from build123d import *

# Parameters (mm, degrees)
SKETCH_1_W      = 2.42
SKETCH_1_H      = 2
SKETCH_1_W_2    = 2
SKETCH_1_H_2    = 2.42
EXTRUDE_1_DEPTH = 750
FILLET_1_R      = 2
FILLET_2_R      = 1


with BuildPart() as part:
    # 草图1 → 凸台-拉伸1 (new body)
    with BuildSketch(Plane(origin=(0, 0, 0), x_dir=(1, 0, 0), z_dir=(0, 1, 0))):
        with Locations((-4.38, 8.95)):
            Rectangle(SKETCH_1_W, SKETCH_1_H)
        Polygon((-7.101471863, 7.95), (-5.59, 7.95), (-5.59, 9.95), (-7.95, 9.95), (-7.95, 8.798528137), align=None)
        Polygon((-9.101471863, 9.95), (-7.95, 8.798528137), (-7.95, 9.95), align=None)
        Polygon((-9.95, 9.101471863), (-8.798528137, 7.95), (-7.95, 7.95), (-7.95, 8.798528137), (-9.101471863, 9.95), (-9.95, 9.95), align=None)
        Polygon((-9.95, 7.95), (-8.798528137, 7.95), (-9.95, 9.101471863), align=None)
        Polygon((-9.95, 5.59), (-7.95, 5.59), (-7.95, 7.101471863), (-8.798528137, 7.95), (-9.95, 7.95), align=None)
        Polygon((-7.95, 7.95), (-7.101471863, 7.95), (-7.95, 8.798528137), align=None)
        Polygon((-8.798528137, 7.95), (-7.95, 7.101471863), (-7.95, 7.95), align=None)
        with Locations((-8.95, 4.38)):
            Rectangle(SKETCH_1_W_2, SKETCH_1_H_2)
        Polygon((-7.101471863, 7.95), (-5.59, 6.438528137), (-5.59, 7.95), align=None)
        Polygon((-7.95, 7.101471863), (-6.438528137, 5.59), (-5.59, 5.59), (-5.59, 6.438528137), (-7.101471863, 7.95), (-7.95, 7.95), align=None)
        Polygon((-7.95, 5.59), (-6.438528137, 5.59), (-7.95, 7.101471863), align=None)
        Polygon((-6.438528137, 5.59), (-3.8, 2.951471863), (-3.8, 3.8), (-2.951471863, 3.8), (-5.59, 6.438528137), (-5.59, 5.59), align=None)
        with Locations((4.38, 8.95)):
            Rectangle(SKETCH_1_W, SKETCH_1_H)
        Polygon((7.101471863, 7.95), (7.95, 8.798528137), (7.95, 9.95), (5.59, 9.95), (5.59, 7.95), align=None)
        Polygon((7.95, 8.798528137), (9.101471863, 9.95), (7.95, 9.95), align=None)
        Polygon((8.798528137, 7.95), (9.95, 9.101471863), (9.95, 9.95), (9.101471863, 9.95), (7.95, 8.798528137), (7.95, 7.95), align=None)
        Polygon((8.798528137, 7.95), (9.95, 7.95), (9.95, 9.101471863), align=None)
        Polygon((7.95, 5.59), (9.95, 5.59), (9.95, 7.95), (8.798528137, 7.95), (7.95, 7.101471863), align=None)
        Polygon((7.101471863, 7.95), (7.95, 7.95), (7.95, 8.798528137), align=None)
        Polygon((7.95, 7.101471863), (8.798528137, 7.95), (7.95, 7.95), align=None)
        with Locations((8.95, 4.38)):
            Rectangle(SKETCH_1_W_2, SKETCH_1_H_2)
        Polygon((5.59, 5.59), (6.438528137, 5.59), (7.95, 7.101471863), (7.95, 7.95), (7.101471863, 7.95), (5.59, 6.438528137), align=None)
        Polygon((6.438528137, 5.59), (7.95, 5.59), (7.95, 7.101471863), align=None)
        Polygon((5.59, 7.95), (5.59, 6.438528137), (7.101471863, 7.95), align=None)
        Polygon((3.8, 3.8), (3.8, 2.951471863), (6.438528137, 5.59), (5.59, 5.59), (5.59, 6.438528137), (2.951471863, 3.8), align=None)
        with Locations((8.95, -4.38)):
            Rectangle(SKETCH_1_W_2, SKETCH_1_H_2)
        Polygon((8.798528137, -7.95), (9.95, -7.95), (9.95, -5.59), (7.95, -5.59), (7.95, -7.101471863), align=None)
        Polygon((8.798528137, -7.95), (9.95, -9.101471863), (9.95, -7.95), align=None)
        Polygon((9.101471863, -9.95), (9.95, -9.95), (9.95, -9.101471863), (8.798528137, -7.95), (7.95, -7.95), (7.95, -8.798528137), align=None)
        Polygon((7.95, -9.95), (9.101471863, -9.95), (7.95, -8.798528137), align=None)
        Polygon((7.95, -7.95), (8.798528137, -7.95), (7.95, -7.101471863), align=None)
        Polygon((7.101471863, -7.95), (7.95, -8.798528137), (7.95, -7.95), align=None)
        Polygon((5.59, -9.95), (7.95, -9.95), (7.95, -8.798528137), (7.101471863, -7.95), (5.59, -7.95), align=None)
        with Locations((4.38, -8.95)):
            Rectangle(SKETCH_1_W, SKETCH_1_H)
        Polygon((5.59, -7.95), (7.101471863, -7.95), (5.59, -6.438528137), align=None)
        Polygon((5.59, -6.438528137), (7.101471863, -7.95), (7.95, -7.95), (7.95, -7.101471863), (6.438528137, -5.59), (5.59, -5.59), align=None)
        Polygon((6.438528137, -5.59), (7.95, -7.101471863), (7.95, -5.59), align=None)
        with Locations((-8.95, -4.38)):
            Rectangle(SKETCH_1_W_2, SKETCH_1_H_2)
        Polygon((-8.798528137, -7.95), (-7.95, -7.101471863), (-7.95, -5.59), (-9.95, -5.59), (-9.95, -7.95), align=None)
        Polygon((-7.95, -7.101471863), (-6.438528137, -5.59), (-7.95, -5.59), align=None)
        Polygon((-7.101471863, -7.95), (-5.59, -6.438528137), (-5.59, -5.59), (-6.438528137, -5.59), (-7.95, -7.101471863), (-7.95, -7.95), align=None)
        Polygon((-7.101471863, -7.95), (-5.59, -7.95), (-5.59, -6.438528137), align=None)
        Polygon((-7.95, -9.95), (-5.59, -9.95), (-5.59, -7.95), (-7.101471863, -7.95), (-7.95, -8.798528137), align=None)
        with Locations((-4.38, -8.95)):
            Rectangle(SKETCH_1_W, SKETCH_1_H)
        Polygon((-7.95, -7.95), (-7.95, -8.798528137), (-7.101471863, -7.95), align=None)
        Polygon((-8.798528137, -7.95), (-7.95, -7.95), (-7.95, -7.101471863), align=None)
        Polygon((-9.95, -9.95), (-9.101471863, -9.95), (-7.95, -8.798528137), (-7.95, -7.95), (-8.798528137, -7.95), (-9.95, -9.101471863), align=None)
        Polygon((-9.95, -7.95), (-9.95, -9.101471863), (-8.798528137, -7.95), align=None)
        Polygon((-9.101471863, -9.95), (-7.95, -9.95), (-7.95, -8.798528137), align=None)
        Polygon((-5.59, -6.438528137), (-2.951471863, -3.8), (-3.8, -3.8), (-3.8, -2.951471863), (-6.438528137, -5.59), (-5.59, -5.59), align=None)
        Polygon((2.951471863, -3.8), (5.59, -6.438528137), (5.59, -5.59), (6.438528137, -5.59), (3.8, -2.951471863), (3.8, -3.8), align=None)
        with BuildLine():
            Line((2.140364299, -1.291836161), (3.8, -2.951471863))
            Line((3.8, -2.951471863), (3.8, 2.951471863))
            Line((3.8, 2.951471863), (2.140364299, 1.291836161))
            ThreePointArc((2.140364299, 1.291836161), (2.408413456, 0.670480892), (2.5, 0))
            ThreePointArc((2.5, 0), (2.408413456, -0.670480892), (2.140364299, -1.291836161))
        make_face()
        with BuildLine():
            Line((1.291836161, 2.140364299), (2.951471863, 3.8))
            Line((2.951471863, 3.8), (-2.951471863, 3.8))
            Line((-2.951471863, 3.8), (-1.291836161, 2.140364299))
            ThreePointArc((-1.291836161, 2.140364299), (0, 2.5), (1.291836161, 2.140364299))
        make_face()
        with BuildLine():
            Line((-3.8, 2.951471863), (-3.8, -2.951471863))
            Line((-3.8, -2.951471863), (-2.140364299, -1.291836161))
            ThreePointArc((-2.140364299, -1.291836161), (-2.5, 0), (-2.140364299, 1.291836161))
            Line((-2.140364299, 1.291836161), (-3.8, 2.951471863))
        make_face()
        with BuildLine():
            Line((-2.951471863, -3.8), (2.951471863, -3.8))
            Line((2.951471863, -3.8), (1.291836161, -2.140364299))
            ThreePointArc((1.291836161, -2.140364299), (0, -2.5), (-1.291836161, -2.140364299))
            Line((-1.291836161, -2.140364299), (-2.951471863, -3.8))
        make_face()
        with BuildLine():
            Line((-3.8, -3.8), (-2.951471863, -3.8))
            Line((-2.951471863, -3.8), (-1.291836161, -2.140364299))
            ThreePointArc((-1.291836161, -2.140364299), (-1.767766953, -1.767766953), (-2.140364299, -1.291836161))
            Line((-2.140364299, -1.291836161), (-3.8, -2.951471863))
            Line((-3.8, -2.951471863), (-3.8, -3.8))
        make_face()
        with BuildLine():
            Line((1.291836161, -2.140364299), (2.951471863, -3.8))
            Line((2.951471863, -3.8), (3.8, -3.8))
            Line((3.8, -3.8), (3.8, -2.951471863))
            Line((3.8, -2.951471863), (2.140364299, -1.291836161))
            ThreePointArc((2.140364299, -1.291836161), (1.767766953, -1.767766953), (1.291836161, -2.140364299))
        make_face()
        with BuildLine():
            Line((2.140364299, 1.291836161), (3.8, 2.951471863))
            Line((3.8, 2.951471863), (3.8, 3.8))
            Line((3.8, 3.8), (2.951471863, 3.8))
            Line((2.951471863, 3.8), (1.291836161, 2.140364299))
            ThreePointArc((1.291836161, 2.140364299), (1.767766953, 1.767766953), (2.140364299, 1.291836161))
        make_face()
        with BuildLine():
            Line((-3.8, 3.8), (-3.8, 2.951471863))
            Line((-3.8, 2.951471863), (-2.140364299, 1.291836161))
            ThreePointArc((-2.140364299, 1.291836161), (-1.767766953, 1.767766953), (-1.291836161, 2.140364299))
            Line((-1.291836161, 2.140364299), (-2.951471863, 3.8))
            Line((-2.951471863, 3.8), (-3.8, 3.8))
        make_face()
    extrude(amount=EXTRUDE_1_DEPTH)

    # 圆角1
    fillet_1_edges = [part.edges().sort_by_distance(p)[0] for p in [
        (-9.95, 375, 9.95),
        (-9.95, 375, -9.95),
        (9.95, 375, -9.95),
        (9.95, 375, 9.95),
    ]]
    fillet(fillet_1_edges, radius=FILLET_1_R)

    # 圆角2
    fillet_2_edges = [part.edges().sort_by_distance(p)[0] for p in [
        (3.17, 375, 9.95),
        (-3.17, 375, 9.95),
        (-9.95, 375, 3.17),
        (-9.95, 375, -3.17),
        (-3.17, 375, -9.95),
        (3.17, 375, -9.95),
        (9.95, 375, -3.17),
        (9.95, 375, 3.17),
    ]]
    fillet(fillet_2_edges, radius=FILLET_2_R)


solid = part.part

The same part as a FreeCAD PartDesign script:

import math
import FreeCAD as App
import Part
import Sketcher
Q = App.Units.Quantity


def edges_at(feature, points):
    """Names of the edges that pass closest to the given points."""
    edges = feature.Shape.Edges
    near = lambda p: min(range(len(edges)), key=lambda i: edges[i].distToShape(Part.Vertex(*p))[0])
    return sorted({f"Edge{near(p) + 1}" for p in points})

doc = App.newDocument("Part")
body = doc.addObject("PartDesign::Body", "Body")

sketch1 = body.newObject("Sketcher::SketchObject", "Sketch")
sketch1.AttachmentSupport = (doc.getObject("XZ_Plane"), [""])
sketch1.MapMode = "FlatFace"
sketch1.addGeometry([
    Part.LineSegment(App.Vector(-3.2, -8, 0), App.Vector(-3.2, -9.9, 0)),
    Part.LineSegment(App.Vector(-3.2, -9.9, 0), App.Vector(-9.9, -9.9, 0)),
    Part.LineSegment(App.Vector(-9.9, -9.9, 0), App.Vector(-9.9, -3.2, 0)),
    Part.LineSegment(App.Vector(-9.9, -3.2, 0), App.Vector(-8, -3.2, 0)),
    Part.LineSegment(App.Vector(-8, -3.2, 0), App.Vector(-8, -5.6, 0)),
    Part.LineSegment(App.Vector(-8, -5.6, 0), App.Vector(-6.4, -5.6, 0)),
    Part.LineSegment(App.Vector(-6.4, -5.6, 0), App.Vector(-3.8, -3, 0)),
    Part.LineSegment(App.Vector(-3.8, -3, 0), App.Vector(-3.8, 3, 0)),
    Part.LineSegment(App.Vector(-3.8, 3, 0), App.Vector(-6.4, 5.6, 0)),
    Part.LineSegment(App.Vector(-6.4, 5.6, 0), App.Vector(-8, 5.6, 0)),
    Part.LineSegment(App.Vector(-8, 5.6, 0), App.Vector(-8, 3.2, 0)),
    Part.LineSegment(App.Vector(-8, 3.2, 0), App.Vector(-9.9, 3.2, 0)),
    Part.LineSegment(App.Vector(-9.9, 3.2, 0), App.Vector(-9.9, 9.9, 0)),
    Part.LineSegment(App.Vector(-9.9, 9.9, 0), App.Vector(-3.2, 9.9, 0)),
    Part.LineSegment(App.Vector(-3.2, 9.9, 0), App.Vector(-3.2, 8, 0)),
    Part.LineSegment(App.Vector(-3.2, 8, 0), App.Vector(-5.6, 8, 0)),
    Part.LineSegment(App.Vector(-5.6, 8, 0), App.Vector(-5.6, 6.4, 0)),
    Part.LineSegment(App.Vector(-5.6, 6.4, 0), App.Vector(-3, 3.8, 0)),
    Part.LineSegment(App.Vector(-3, 3.8, 0), App.Vector(3, 3.8, 0)),
    Part.LineSegment(App.Vector(3, 3.8, 0), App.Vector(5.6, 6.4, 0)),
    Part.LineSegment(App.Vector(5.6, 6.4, 0), App.Vector(5.6, 8, 0)),
    Part.LineSegment(App.Vector(5.6, 8, 0), App.Vector(3.2, 8, 0)),
    Part.LineSegment(App.Vector(3.2, 8, 0), App.Vector(3.2, 9.9, 0)),
    Part.LineSegment(App.Vector(3.2, 9.9, 0), App.Vector(9.9, 9.9, 0)),
    Part.LineSegment(App.Vector(9.9, 9.9, 0), App.Vector(9.9, 3.2, 0)),
    Part.LineSegment(App.Vector(9.9, 3.2, 0), App.Vector(8, 3.2, 0)),
    Part.LineSegment(App.Vector(8, 3.2, 0), App.Vector(8, 5.6, 0)),
    Part.LineSegment(App.Vector(8, 5.6, 0), App.Vector(6.4, 5.6, 0)),
    Part.LineSegment(App.Vector(6.4, 5.6, 0), App.Vector(3.8, 3, 0)),
    Part.LineSegment(App.Vector(3.8, 3, 0), App.Vector(3.8, -3, 0)),
    Part.LineSegment(App.Vector(3.8, -3, 0), App.Vector(6.4, -5.6, 0)),
    Part.LineSegment(App.Vector(6.4, -5.6, 0), App.Vector(8, -5.6, 0)),
    Part.LineSegment(App.Vector(8, -5.6, 0), App.Vector(8, -3.2, 0)),
    Part.LineSegment(App.Vector(8, -3.2, 0), App.Vector(9.9, -3.2, 0)),
    Part.LineSegment(App.Vector(9.9, -3.2, 0), App.Vector(9.9, -9.9, 0)),
    Part.LineSegment(App.Vector(9.9, -9.9, 0), App.Vector(3.2, -9.9, 0)),
    Part.LineSegment(App.Vector(3.2, -9.9, 0), App.Vector(3.2, -8, 0)),
    Part.LineSegment(App.Vector(3.2, -8, 0), App.Vector(5.6, -8, 0)),
    Part.LineSegment(App.Vector(5.6, -8, 0), App.Vector(5.6, -6.4, 0)),
    Part.LineSegment(App.Vector(5.6, -6.4, 0), App.Vector(3, -3.8, 0)),
    Part.LineSegment(App.Vector(3, -3.8, 0), App.Vector(-3, -3.8, 0)),
    Part.LineSegment(App.Vector(-3, -3.8, 0), App.Vector(-5.6, -6.4, 0)),
    Part.LineSegment(App.Vector(-5.6, -6.4, 0), App.Vector(-5.6, -8, 0)),
    Part.LineSegment(App.Vector(-5.6, -8, 0), App.Vector(-3.2, -8, 0)),
    Part.ArcOfCircle(Part.Circle(App.Vector(0, 0, 0), App.Vector(0, 0, 1), 2.5), math.radians(-149), math.radians(-121)),
    Part.ArcOfCircle(Part.Circle(App.Vector(0, 0, 0), App.Vector(0, 0, 1), 2.5), math.radians(-121), math.radians(-59)),
    Part.ArcOfCircle(Part.Circle(App.Vector(0, 0, 0), App.Vector(0, 0, 1), 2.5), math.radians(-59), math.radians(-31)),
    Part.ArcOfCircle(Part.Circle(App.Vector(0, 0, 0), App.Vector(0, 0, 1), 2.5), math.radians(-31), math.radians(0)),
    Part.ArcOfCircle(Part.Circle(App.Vector(0, 0, 0), App.Vector(0, 0, 1), 2.5), math.radians(0), math.radians(31)),
    Part.ArcOfCircle(Part.Circle(App.Vector(0, 0, 0), App.Vector(0, 0, 1), 2.5), math.radians(31), math.radians(59)),
    Part.ArcOfCircle(Part.Circle(App.Vector(0, 0, 0), App.Vector(0, 0, 1), 2.5), math.radians(59), math.radians(121)),
    Part.ArcOfCircle(Part.Circle(App.Vector(0, 0, 0), App.Vector(0, 0, 1), 2.5), math.radians(121), math.radians(149)),
    Part.ArcOfCircle(Part.Circle(App.Vector(0, 0, 0), App.Vector(0, 0, 1), 2.5), math.radians(149), math.radians(211)),
], False)
sketch1.addConstraint([
    Sketcher.Constraint("Coincident", 0, 2, 1, 1),
    Sketcher.Constraint("Coincident", 1, 2, 2, 1),
    Sketcher.Constraint("Coincident", 2, 2, 3, 1),
    Sketcher.Constraint("Coincident", 3, 2, 4, 1),
    Sketcher.Constraint("Coincident", 4, 2, 5, 1),
    Sketcher.Constraint("Coincident", 5, 2, 6, 1),
    Sketcher.Constraint("Coincident", 6, 2, 7, 1),
    Sketcher.Constraint("Coincident", 7, 2, 8, 1),
    Sketcher.Constraint("Coincident", 8, 2, 9, 1),
    Sketcher.Constraint("Coincident", 9, 2, 10, 1),
    Sketcher.Constraint("Coincident", 10, 2, 11, 1),
    Sketcher.Constraint("Coincident", 11, 2, 12, 1),
    Sketcher.Constraint("Coincident", 12, 2, 13, 1),
    Sketcher.Constraint("Coincident", 13, 2, 14, 1),
    Sketcher.Constraint("Coincident", 14, 2, 15, 1),
    Sketcher.Constraint("Coincident", 15, 2, 16, 1),
    Sketcher.Constraint("Coincident", 16, 2, 17, 1),
    Sketcher.Constraint("Coincident", 17, 2, 18, 1),
    Sketcher.Constraint("Coincident", 18, 2, 19, 1),
    Sketcher.Constraint("Coincident", 19, 2, 20, 1),
    Sketcher.Constraint("Coincident", 20, 2, 21, 1),
    Sketcher.Constraint("Coincident", 21, 2, 22, 1),
    Sketcher.Constraint("Coincident", 22, 2, 23, 1),
    Sketcher.Constraint("Coincident", 23, 2, 24, 1),
    Sketcher.Constraint("Coincident", 24, 2, 25, 1),
    Sketcher.Constraint("Coincident", 25, 2, 26, 1),
    Sketcher.Constraint("Coincident", 26, 2, 27, 1),
    Sketcher.Constraint("Coincident", 27, 2, 28, 1),
    Sketcher.Constraint("Coincident", 28, 2, 29, 1),
    Sketcher.Constraint("Coincident", 29, 2, 30, 1),
    Sketcher.Constraint("Coincident", 30, 2, 31, 1),
    Sketcher.Constraint("Coincident", 31, 2, 32, 1),
    Sketcher.Constraint("Coincident", 32, 2, 33, 1),
    Sketcher.Constraint("Coincident", 33, 2, 34, 1),
    Sketcher.Constraint("Coincident", 34, 2, 35, 1),
    Sketcher.Constraint("Coincident", 35, 2, 36, 1),
    Sketcher.Constraint("Coincident", 36, 2, 37, 1),
    Sketcher.Constraint("Coincident", 37, 2, 38, 1),
    Sketcher.Constraint("Coincident", 38, 2, 39, 1),
    Sketcher.Constraint("Coincident", 39, 2, 40, 1),
    Sketcher.Constraint("Coincident", 40, 2, 41, 1),
    Sketcher.Constraint("Coincident", 41, 2, 42, 1),
    Sketcher.Constraint("Coincident", 42, 2, 43, 1),
    Sketcher.Constraint("Coincident", 43, 2, 0, 1),
    Sketcher.Constraint("Tangent", 44, 2, 45, 1),
    Sketcher.Constraint("Tangent", 45, 2, 46, 1),
    Sketcher.Constraint("Tangent", 46, 2, 47, 1),
    Sketcher.Constraint("Tangent", 47, 2, 48, 1),
    Sketcher.Constraint("Tangent", 48, 2, 49, 1),
    Sketcher.Constraint("Tangent", 49, 2, 50, 1),
    Sketcher.Constraint("Tangent", 50, 2, 51, 1),
    Sketcher.Constraint("Tangent", 51, 2, 52, 1),
    Sketcher.Constraint("Tangent", 52, 2, 44, 1),
    Sketcher.Constraint("Vertical", 0),
    Sketcher.Constraint("Horizontal", 1),
    Sketcher.Constraint("Vertical", 2),
    Sketcher.Constraint("Horizontal", 3),
    Sketcher.Constraint("Vertical", 4),
    Sketcher.Constraint("Horizontal", 5),
    Sketcher.Constraint("Vertical", 7),
    Sketcher.Constraint("Horizontal", 9),
    Sketcher.Constraint("Vertical", 10),
    Sketcher.Constraint("Horizontal", 11),
    Sketcher.Constraint("Vertical", 12),
    Sketcher.Constraint("Horizontal", 13),
    Sketcher.Constraint("Vertical", 14),
    Sketcher.Constraint("Horizontal", 15),
    Sketcher.Constraint("Vertical", 16),
    Sketcher.Constraint("Horizontal", 18),
    Sketcher.Constraint("Vertical", 20),
    Sketcher.Constraint("Horizontal", 21),
    Sketcher.Constraint("Vertical", 22),
    Sketcher.Constraint("Horizontal", 23),
    Sketcher.Constraint("Vertical", 24),
    Sketcher.Constraint("Horizontal", 25),
    Sketcher.Constraint("Vertical", 26),
    Sketcher.Constraint("Horizontal", 27),
    Sketcher.Constraint("Vertical", 29),
    Sketcher.Constraint("Horizontal", 31),
    Sketcher.Constraint("Vertical", 32),
    Sketcher.Constraint("Horizontal", 33),
    Sketcher.Constraint("Vertical", 34),
    Sketcher.Constraint("Horizontal", 35),
    Sketcher.Constraint("Vertical", 36),
    Sketcher.Constraint("Horizontal", 37),
    Sketcher.Constraint("Vertical", 38),
    Sketcher.Constraint("Horizontal", 40),
    Sketcher.Constraint("Vertical", 42),
    Sketcher.Constraint("Horizontal", 43),
    Sketcher.Constraint("Coincident", 44, 3, -1, 1),
    Sketcher.Constraint("Coincident", 46, 3, -1, 1),
    Sketcher.Constraint("Coincident", 48, 3, -1, 1),
    Sketcher.Constraint("Coincident", 50, 3, -1, 1),
    Sketcher.Constraint("Symmetric", 0, 2, 22, 2, -1, 1),
    Sketcher.Constraint("Symmetric", 2, 2, 24, 2, -1, 1),
    Sketcher.Constraint("Symmetric", 4, 2, 26, 2, -1, 1),
    Sketcher.Constraint("Symmetric", 6, 2, 28, 2, -1, 1),
    Sketcher.Constraint("Symmetric", 8, 2, 30, 2, -1, 1),
    Sketcher.Constraint("Symmetric", 10, 2, 32, 2, -1, 1),
    Sketcher.Constraint("Symmetric", 12, 2, 34, 2, -1, 1),
    Sketcher.Constraint("Symmetric", 14, 2, 36, 2, -1, 1),
    Sketcher.Constraint("Symmetric", 16, 2, 38, 2, -1, 1),
    Sketcher.Constraint("Symmetric", 17, 2, 39, 2, -1, 1),
    Sketcher.Constraint("Symmetric", 19, 2, 41, 2, -1, 1),
    Sketcher.Constraint("Symmetric", 16, 2, 19, 2, -2),
    Sketcher.Constraint("Symmetric", 14, 2, 21, 2, -2),
    Sketcher.Constraint("Symmetric", 12, 2, 23, 2, -2),
    Sketcher.Constraint("Symmetric", 10, 2, 25, 2, -2),
    Sketcher.Constraint("Symmetric", 8, 2, 27, 2, -2),
    Sketcher.Constraint("PointOnObject", 47, 2, -1),
    Sketcher.Constraint("Perpendicular", 6, 8),
    Sketcher.Constraint("Parallel", 8, 17),
    Sketcher.Constraint("Perpendicular", 17, 19),
    Sketcher.Constraint("Parallel", 19, 28),
    Sketcher.Constraint("Perpendicular", 28, 30),
    Sketcher.Constraint("Perpendicular", 39, 41),
    Sketcher.Constraint("Horizontal", 7, 2, 28, 2),
    Sketcher.Constraint("Horizontal", 37, 2, 42, 2),
    Sketcher.Constraint("Horizontal", 44, 2, 45, 2),
    Sketcher.Constraint("Horizontal", 49, 2, 50, 2),
    Sketcher.Constraint("Horizontal", 48, 2, 51, 2),
    Sketcher.Constraint("Horizontal", 46, 2, 52, 2),
    Sketcher.Constraint("Vertical", 46, 2, 48, 2),
    Sketcher.Constraint("Vertical", 45, 2, 49, 2),
    Sketcher.Constraint("Equal", 33, 0),
    Sketcher.Constraint("Equal", 35, 2),
    Sketcher.Constraint("Equal", 43, 4),
    Sketcher.Constraint("Equal", 40, 7),
    Sketcher.Constraint("Equal", 31, 16),
    Sketcher.Constraint("Equal", 8, 17),
    Sketcher.Constraint("Radius", 44, Q("2.5 mm")),
    Sketcher.Constraint("DistanceX", 3, 1, 3, 2, Q("2 mm")),
    Sketcher.Constraint("DistanceX", 1, 2, 1, 1, Q("6.78 mm")),
    Sketcher.Constraint("DistanceX", 15, 2, 15, 1, Q("2.42 mm")),
    Sketcher.Constraint("DistanceX", 6, 2, -1, 1, Q("3.8 mm")),
    Sketcher.Constraint("DistanceX", 0, 2, -1, 1, Q("3.17 mm")),
    Sketcher.Constraint("DistanceX", 5, 1, 5, 2, Q("1.511472 mm")),
    Sketcher.Constraint("DistanceX", 44, 2, -1, 1, Q("1.291836 mm")),
    Sketcher.Constraint("DistanceX", -1, 1, 46, 2, Q("2.140364 mm")),
])
pad1 = body.newObject("PartDesign::Pad", "Pad")
pad1.Profile = sketch1
pad1.Length = 750
pad1.Reversed = True
doc.recompute()

fillet = body.newObject("PartDesign::Fillet", "Fillet")
fillet.Base = (pad1, edges_at(pad1, [
    (-9.95, 375, 9.95),
    (-9.95, 375, -9.95),
    (9.95, 375, -9.95),
    (9.95, 375, 9.95),
]))
fillet.Radius = 2
doc.recompute()

fillet2 = body.newObject("PartDesign::Fillet", "Fillet001")
fillet2.Base = (fillet, edges_at(fillet, [
    (3.17, 375, 9.95),
    (-3.17, 375, 9.95),
    (-9.95, 375, 3.17),
    (-9.95, 375, -3.17),
    (-3.17, 375, -9.95),
    (3.17, 375, -9.95),
    (9.95, 375, -3.17),
    (9.95, 375, 3.17),
]))
fillet2.Radius = 1

doc.recompute()
